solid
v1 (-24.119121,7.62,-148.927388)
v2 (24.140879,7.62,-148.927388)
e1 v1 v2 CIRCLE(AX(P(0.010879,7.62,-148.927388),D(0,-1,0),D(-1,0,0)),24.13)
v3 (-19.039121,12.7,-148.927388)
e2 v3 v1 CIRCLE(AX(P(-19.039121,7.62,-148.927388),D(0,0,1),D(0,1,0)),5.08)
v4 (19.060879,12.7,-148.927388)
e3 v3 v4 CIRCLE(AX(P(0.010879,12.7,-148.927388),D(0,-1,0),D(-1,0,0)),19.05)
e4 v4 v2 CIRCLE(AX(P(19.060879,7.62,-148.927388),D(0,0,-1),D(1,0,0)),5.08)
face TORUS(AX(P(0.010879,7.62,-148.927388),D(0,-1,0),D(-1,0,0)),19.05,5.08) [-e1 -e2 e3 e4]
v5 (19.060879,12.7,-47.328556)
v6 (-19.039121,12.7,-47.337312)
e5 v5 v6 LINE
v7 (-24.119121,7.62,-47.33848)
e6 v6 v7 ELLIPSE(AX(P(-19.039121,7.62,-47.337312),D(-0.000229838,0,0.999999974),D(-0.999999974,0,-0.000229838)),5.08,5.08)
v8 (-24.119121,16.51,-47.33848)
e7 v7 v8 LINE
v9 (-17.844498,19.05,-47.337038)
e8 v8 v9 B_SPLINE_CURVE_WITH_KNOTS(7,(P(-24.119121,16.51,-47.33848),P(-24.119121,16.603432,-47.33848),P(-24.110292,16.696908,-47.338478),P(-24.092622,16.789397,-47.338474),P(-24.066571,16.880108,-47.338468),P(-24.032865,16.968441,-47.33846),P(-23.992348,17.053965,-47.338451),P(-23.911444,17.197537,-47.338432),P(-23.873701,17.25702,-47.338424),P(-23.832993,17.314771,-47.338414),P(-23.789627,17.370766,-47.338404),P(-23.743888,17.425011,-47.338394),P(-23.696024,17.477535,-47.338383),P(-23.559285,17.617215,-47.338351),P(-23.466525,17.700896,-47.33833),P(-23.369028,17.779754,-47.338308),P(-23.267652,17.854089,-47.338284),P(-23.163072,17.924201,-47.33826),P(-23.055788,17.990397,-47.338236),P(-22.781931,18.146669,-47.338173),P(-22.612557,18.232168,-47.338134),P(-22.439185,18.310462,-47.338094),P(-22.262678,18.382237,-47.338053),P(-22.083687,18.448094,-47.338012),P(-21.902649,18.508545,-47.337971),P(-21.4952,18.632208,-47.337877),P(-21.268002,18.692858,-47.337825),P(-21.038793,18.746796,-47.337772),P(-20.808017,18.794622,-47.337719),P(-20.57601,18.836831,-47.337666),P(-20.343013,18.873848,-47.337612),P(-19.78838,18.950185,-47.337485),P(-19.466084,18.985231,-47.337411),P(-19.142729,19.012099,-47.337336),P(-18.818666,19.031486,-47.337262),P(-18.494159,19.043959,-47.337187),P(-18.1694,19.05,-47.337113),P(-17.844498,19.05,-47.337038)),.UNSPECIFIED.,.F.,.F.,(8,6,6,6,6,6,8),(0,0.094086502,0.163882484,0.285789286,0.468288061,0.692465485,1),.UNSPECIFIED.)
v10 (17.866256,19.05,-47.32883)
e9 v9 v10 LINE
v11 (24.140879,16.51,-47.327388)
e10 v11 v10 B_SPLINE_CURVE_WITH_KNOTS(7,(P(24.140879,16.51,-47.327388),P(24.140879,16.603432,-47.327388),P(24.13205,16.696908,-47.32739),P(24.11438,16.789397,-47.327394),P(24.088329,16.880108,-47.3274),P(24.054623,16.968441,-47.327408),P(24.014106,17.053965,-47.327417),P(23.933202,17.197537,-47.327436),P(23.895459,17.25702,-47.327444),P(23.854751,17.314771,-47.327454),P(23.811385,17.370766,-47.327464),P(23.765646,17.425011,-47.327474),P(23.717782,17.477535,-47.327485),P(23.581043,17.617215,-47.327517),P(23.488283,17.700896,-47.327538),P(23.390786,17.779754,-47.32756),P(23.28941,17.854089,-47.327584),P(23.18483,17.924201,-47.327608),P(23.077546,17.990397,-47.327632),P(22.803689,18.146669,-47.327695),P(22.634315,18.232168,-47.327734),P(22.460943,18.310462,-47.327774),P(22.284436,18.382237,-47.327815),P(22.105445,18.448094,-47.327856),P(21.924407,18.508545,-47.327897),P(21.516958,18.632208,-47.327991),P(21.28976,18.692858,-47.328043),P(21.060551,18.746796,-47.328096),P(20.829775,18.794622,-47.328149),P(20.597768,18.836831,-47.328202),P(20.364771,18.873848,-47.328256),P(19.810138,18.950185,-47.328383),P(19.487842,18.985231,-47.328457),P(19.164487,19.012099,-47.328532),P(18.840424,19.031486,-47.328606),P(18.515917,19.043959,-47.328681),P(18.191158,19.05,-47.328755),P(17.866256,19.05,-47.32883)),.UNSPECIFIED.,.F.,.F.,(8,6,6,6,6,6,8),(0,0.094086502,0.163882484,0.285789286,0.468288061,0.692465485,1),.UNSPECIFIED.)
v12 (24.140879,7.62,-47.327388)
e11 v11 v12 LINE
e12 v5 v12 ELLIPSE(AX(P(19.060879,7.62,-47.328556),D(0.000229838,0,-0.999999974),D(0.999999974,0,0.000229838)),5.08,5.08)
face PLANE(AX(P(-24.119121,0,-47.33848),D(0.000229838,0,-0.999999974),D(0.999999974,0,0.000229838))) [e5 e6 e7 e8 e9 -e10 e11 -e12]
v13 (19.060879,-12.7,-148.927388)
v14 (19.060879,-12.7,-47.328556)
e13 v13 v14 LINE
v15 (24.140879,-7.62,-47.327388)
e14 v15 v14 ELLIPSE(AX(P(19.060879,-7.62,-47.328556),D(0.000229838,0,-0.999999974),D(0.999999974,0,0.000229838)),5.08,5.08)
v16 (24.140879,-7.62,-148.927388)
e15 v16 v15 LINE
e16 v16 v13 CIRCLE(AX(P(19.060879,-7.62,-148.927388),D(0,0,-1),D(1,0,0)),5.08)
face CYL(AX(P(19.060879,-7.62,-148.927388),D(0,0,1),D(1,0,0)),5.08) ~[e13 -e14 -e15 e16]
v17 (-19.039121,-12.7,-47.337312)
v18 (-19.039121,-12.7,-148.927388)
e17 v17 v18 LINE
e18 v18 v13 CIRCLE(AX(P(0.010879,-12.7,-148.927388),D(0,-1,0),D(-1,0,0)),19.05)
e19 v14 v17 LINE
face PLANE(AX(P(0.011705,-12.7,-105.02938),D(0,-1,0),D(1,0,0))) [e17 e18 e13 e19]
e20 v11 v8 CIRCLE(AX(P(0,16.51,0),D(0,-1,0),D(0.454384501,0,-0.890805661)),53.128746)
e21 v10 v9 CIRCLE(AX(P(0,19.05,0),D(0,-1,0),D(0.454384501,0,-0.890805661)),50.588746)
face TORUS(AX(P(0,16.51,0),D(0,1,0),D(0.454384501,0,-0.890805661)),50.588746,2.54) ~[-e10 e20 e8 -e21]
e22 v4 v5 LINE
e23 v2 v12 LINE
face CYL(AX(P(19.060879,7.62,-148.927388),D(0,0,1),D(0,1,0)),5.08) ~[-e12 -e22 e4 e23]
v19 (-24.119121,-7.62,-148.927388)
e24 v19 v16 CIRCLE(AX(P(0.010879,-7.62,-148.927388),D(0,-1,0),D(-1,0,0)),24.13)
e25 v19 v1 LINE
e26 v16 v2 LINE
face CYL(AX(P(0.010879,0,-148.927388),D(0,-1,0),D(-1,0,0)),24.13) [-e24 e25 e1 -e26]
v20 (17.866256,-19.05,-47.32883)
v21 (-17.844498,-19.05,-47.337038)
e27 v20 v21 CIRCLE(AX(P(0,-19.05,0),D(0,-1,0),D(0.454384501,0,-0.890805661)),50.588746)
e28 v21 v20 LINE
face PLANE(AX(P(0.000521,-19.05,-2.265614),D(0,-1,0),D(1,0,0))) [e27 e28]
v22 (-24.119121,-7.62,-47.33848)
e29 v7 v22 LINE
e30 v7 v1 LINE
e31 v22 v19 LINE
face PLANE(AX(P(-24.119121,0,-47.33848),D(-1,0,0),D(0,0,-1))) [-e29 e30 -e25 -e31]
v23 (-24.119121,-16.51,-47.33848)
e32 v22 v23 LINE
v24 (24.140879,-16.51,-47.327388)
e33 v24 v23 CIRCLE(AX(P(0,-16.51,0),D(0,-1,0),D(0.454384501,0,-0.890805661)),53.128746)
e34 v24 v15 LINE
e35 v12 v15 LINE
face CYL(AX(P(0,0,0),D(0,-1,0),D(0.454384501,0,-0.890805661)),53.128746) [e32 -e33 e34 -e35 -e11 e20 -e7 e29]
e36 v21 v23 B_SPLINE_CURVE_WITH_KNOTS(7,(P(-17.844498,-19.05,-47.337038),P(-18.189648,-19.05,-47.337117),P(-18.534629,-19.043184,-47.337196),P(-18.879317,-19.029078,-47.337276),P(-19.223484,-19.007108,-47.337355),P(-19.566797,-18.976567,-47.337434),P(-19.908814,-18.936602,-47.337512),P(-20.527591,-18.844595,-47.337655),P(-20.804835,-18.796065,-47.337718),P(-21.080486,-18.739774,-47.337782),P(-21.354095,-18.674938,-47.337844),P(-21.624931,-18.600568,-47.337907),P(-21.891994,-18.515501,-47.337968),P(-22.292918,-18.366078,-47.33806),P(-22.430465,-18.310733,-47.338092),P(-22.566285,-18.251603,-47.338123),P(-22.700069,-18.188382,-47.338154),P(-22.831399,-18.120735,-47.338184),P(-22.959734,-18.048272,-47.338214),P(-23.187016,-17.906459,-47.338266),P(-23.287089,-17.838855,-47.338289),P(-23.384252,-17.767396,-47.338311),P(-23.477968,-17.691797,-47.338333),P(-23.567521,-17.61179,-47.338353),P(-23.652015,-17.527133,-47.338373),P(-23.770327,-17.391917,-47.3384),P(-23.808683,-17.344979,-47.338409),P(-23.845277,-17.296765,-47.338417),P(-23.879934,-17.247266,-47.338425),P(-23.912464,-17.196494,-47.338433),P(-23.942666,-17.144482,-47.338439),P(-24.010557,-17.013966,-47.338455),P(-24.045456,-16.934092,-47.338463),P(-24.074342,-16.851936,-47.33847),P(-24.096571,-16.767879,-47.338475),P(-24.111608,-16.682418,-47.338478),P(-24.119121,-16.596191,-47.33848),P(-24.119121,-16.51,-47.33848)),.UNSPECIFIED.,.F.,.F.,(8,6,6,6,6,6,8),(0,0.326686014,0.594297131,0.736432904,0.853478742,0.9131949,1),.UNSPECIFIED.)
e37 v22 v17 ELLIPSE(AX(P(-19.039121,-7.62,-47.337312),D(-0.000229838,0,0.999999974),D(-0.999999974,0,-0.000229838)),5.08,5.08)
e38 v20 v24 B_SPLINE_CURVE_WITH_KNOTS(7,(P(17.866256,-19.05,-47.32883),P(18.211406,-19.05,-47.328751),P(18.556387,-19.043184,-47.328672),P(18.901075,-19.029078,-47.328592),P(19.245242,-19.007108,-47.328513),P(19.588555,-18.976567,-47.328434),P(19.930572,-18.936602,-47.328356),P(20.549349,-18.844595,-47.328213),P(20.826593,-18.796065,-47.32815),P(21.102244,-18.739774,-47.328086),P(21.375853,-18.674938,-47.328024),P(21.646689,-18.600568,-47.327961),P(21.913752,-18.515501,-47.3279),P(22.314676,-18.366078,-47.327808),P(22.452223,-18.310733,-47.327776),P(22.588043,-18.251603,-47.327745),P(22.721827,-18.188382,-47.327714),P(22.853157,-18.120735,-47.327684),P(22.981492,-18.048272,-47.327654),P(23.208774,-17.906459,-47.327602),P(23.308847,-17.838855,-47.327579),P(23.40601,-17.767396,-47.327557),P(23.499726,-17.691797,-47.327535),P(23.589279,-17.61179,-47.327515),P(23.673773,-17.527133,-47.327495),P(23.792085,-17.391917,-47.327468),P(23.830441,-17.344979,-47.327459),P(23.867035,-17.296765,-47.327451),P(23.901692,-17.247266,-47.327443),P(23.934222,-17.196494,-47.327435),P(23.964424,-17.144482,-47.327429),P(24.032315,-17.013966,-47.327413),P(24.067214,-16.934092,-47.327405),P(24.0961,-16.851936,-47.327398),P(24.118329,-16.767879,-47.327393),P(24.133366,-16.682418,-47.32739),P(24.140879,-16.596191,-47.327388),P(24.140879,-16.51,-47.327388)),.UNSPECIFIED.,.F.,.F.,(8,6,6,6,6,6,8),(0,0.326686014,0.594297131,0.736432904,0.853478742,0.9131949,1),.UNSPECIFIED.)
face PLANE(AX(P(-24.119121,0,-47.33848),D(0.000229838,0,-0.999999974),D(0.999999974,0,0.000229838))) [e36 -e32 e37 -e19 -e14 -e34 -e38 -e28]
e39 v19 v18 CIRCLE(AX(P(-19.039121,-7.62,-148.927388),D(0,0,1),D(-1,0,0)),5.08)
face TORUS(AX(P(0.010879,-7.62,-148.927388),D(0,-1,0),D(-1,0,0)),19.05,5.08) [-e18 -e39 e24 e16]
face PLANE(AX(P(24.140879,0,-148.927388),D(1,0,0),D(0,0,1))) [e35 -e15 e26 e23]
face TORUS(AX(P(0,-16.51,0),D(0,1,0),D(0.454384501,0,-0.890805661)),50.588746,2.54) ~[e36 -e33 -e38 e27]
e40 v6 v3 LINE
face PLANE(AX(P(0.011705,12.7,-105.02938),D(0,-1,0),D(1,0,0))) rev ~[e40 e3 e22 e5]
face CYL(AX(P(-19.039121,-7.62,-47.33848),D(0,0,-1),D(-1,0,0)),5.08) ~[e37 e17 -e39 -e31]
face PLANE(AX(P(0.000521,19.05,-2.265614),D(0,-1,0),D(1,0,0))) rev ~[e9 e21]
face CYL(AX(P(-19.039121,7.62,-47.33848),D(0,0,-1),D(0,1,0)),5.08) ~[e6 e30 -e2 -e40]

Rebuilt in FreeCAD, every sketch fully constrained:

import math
import FreeCAD as App
import Part
import Sketcher
from FreeCAD import Vector
Q = App.Units.Quantity


def edges_at(feature, points):
    """Names of the edges that pass closest to the given points."""
    edges = feature.Shape.Edges
    near = lambda p: min(range(len(edges)), key=lambda i: edges[i].distToShape(Part.Vertex(*p))[0])
    return sorted({f"Edge{near(p) + 1}" for p in points})

doc = App.newDocument("Part")
body = doc.addObject("PartDesign::Body", "Body")

sketch1 = body.newObject("Sketcher::SketchObject", "Sketch")
sketch1.AttachmentSupport = (doc.getObject("XZ_Plane"), [""])
sketch1.MapMode = "FlatFace"
sketch1.addGeometry(Part.LineSegment(Vector(-24, -47, 0), Vector(24, -47, 0)), False)
sketch1.addGeometry(Part.ArcOfCircle(Part.Circle(Vector(0, 0, 0), Vector(0, 0, 1), 53), math.radians(-63), math.radians(243)), False)
sketch1.addConstraint(Sketcher.Constraint("Coincident", 0, 1, 1, 2))
sketch1.addConstraint(Sketcher.Constraint("Coincident", 1, 1, 0, 2))
sketch1.addConstraint(Sketcher.Constraint("Coincident", 1, 3, -1, 1))
sketch1.addConstraint(Sketcher.Constraint("Distance", 0, Q("1.9000001 in")))
sketch1.addConstraint(Sketcher.Constraint("Radius", 1, 53.128746))
sketch1.addConstraint(Sketcher.Constraint("DistanceX", 0, 1, -1, 1, 24.119121))
pad1 = body.newObject("PartDesign::Pad", "Pad")
pad1.Profile = sketch1
pad1.Length = Q("1.5 in")
pad1.Midplane = True
doc.recompute()

fillet = body.newObject("PartDesign::Fillet", "Fillet")
fillet.Base = (pad1, edges_at(pad1, [(-0.012, -19.05, 53.129), (-0.012, 19.05, 53.129)]))
fillet.Radius = Q("0.1 in")

sketch2 = body.newObject("Sketcher::SketchObject", "Sketch001")
sketch2.AttachmentSupport = (doc.getObject("XZ_Plane"), [""])
sketch2.MapMode = "FlatFace"
sketch2.addGeometry(Part.LineSegment(Vector(24, -149, 0), Vector(24, -47, 0)), False)
sketch2.addGeometry(Part.LineSegment(Vector(24, -47, 0), Vector(-24, -47, 0)), False)
sketch2.addGeometry(Part.LineSegment(Vector(-24, -47, 0), Vector(-24, -149, 0)), False)
sketch2.addGeometry(Part.ArcOfCircle(Part.Circle(Vector(0, -149, 0), Vector(0, 0, 1), 24), math.radians(180), math.radians(360)), False)
sketch2.addConstraint(Sketcher.Constraint("Coincident", 0, 2, 1, 1))
sketch2.addConstraint(Sketcher.Constraint("Coincident", 1, 2, 2, 1))
sketch2.addConstraint(Sketcher.Constraint("Tangent", 2, 2, 3, 1))
sketch2.addConstraint(Sketcher.Constraint("Tangent", 3, 2, 0, 1))
sketch2.addConstraint(Sketcher.Constraint("Vertical", 0))
sketch2.addConstraint(Sketcher.Constraint("Vertical", 2))
sketch2.addConstraint(Sketcher.Constraint("DistanceY", 0, 1, 0, 2, Q("4 in")))
sketch2.addConstraint(Sketcher.Constraint("Radius", 3, Q("0.95 in")))
sketch2.addConstraint(Sketcher.Constraint("DistanceY", 2, 2, 2, 1, 101.588908))
sketch2.addConstraint(Sketcher.Constraint("DistanceX", -1, 1, 3, 3, 0.010879))
sketch2.addConstraint(Sketcher.Constraint("DistanceY", 3, 3, -1, 1, 148.927388))
pad2 = body.newObject("PartDesign::Pad", "Pad001")
pad2.Profile = sketch2
pad2.Length = Q("1 in")
pad2.Midplane = True
doc.recompute()

fillet2 = body.newObject("PartDesign::Fillet", "Fillet001")
fillet2.Base = (pad2, edges_at(pad2, [
    (-24.119, 12.7, -98.133),
    (-24.119, -12.7, -98.133),
    (24.141, -12.7, -98.127),
    (24.141, 12.7, -98.127),
]))
fillet2.Radius = Q("0.2 in")

doc.recompute()
